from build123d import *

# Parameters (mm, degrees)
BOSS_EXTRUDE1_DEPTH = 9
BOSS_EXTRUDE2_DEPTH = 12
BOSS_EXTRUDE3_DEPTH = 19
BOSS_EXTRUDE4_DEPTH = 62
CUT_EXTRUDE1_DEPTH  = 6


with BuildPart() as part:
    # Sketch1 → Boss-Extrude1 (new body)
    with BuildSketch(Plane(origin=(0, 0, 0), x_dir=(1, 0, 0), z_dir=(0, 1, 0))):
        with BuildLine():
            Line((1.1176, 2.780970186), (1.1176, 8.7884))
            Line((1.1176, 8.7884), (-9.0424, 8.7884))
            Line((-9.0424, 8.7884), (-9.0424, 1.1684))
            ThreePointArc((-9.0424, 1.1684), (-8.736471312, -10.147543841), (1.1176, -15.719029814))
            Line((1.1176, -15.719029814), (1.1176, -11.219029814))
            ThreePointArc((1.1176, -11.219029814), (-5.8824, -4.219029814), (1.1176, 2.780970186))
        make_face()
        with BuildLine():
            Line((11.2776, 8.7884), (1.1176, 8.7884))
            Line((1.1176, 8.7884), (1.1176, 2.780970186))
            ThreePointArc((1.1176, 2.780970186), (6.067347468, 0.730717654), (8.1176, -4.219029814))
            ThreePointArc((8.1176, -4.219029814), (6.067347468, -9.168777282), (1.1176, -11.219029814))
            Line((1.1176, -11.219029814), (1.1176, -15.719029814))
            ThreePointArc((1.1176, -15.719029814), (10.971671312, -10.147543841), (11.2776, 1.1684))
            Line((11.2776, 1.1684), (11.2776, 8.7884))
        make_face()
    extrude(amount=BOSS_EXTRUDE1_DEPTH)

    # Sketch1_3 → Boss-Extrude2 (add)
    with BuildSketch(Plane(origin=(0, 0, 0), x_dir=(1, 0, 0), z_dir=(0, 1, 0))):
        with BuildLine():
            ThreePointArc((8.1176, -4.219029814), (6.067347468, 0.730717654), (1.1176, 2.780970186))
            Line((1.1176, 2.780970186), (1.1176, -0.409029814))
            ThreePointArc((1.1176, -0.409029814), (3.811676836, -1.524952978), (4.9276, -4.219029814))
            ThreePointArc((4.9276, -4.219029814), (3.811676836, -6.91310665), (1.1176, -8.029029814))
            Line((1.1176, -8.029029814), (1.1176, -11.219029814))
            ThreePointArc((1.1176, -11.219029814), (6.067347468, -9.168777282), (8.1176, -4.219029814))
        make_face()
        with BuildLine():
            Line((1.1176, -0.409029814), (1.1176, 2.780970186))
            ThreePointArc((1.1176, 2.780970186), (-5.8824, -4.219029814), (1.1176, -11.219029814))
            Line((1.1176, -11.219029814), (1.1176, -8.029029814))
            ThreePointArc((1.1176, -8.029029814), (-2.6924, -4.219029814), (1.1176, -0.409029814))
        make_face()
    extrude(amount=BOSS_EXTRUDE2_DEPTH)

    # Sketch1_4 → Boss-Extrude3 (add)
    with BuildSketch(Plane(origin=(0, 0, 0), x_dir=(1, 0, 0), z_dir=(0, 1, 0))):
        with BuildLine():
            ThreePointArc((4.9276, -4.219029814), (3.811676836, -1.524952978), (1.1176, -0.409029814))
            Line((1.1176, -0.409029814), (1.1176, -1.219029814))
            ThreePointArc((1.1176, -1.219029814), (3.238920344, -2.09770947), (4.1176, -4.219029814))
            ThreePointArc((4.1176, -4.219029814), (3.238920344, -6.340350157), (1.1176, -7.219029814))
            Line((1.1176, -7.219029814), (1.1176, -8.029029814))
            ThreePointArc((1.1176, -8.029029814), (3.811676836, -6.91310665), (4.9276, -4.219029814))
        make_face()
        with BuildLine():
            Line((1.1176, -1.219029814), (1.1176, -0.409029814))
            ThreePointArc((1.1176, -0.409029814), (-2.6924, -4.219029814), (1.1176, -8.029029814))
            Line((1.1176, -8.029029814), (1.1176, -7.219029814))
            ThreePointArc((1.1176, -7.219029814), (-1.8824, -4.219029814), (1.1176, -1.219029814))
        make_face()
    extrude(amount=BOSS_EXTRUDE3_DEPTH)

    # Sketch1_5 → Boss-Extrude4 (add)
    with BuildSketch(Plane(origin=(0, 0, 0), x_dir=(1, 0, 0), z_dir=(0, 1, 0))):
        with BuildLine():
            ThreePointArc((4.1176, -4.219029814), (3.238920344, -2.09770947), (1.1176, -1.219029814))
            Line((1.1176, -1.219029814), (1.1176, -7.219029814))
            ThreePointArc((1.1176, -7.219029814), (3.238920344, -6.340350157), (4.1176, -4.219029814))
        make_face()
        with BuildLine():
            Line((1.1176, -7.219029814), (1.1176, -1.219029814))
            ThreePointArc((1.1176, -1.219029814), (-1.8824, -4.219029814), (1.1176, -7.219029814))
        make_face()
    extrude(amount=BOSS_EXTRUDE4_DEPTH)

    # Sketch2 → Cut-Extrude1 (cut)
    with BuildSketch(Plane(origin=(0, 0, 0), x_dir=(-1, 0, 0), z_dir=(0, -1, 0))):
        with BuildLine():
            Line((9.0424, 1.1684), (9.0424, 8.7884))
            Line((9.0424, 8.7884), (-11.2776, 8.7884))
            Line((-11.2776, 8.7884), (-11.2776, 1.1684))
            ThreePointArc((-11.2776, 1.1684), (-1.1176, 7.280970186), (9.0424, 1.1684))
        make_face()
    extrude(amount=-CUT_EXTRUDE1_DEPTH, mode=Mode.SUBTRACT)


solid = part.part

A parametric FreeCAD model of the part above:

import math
import FreeCAD as App
import Part
import Sketcher

V = App.Vector
Q = App.Units.Quantity

doc = App.newDocument("Part")
body = doc.addObject("PartDesign::Body", "Body")

sketch1 = doc.addObject("Sketcher::SketchObject", "Sketch")
body.addObject(sketch1)
sketch1.AttachmentSupport = (doc.XZ_Plane, [""])
sketch1.MapMode = "FlatFace"
sketch1.addGeometry([
    Part.LineSegment(V(-9, -9, 0), V(-9, -1, 0)),
    Part.ArcOfCircle(Part.Circle(V(1, 4, 0), V(0, 0, 1), 12), math.radians(90), math.radians(208)),
    Part.ArcOfCircle(Part.Circle(V(1, 4, 0), V(0, 0, 1), 12), math.radians(-28), math.radians(90)),
    Part.LineSegment(V(11, -1, 0), V(11, -9, 0)),
    Part.LineSegment(V(11, -9, 0), V(-9, -9, 0)),
    Part.ArcOfCircle(Part.Circle(V(1, 4, 0), V(0, 0, 1), 7), math.radians(90), math.radians(270)),
    Part.ArcOfCircle(Part.Circle(V(1, 4, 0), V(0, 0, 1), 7), math.radians(-90), math.radians(0)),
    Part.ArcOfCircle(Part.Circle(V(1, 4, 0), V(0, 0, 1), 7), math.radians(0), math.radians(90)),
], False)
sketch1.addConstraint([
    Sketcher.Constraint("Coincident", 0, 2, 1, 2),
    Sketcher.Constraint("Tangent", 1, 1, 2, 2),
    Sketcher.Constraint("Coincident", 2, 1, 3, 1),
    Sketcher.Constraint("Coincident", 3, 2, 4, 1),
    Sketcher.Constraint("Coincident", 4, 2, 0, 1),
    Sketcher.Constraint("Tangent", 5, 2, 6, 1),
    Sketcher.Constraint("Tangent", 6, 2, 7, 1),
    Sketcher.Constraint("Tangent", 7, 2, 5, 1),
    Sketcher.Constraint("Vertical", 0),
    Sketcher.Constraint("Vertical", 3),
    Sketcher.Constraint("Horizontal", 4),
    Sketcher.Constraint("Coincident", 5, 3, 1, 3),
    Sketcher.Constraint("Equal", 1, 2),
    Sketcher.Constraint("Horizontal", 0, 2, 2, 1),
    Sketcher.Constraint("Horizontal", 7, 3, 6, 2),
    Sketcher.Constraint("Vertical", 7, 3, 1, 1),
    Sketcher.Constraint("Vertical", 1, 1, 5, 2),
    Sketcher.Constraint("Vertical", 5, 2, 7, 2),
    Sketcher.Constraint("Radius", 5, Q("7 mm")),
    Sketcher.Constraint("Radius", 1, Q("11.5 mm")),
    Sketcher.Constraint("DistanceX", 4, 2, 4, 1, Q("20.32 mm")),
    Sketcher.Constraint("DistanceY", 0, 1, 0, 2, Q("7.62 mm")),
    Sketcher.Constraint("DistanceX", -1, 1, 1, 3, Q("1.1176 mm")),
    Sketcher.Constraint("DistanceY", 0, 2, -1, 1, Q("1.1684 mm")),
])
pad1 = doc.addObject("PartDesign::Pad", "Pad")
body.addObject(pad1)
pad1.Profile = sketch1
pad1.Length = 9
pad1.Reversed = True

sketch2 = doc.addObject("Sketcher::SketchObject", "Sketch001")
body.addObject(sketch2)
sketch2.AttachmentSupport = (doc.XZ_Plane, [""])
sketch2.MapMode = "FlatFace"
sketch2.addGeometry([
    Part.ArcOfCircle(Part.Circle(V(1.1, 4.2, 0), V(0, 0, 1), 7), math.radians(-90), math.radians(0)),
    Part.ArcOfCircle(Part.Circle(V(1.1, 4.2, 0), V(0, 0, 1), 7), math.radians(90), math.radians(270)),
    Part.ArcOfCircle(Part.Circle(V(1.1, 4.2, 0), V(0, 0, 1), 7), math.radians(0), math.radians(90)),
    Part.ArcOfCircle(Part.Circle(V(1.1, 4.2, 0), V(0, 0, 1), 3.8), math.radians(0), math.radians(90)),
    Part.ArcOfCircle(Part.Circle(V(1.1, 4.2, 0), V(0, 0, 1), 3.8), math.radians(90), math.radians(270)),
    Part.ArcOfCircle(Part.Circle(V(1.1, 4.2, 0), V(0, 0, 1), 3.8), math.radians(-90), math.radians(0)),
], False)
sketch2.addConstraint([
    Sketcher.Constraint("Tangent", 0, 1, 1, 2),
    Sketcher.Constraint("Tangent", 1, 1, 2, 2),
    Sketcher.Constraint("Tangent", 2, 1, 0, 2),
    Sketcher.Constraint("Tangent", 3, 2, 4, 1),
    Sketcher.Constraint("Tangent", 4, 2, 5, 1),
    Sketcher.Constraint("Tangent", 5, 2, 3, 1),
    Sketcher.Constraint("Coincident", 3, 3, 0, 3),
    Sketcher.Constraint("Horizontal", 5, 3, 2, 1),
    Sketcher.Constraint("Horizontal", 2, 1, 5, 2),
    Sketcher.Constraint("Vertical", 5, 3, 0, 1),
    Sketcher.Constraint("Vertical", 0, 1, 1, 1),
    Sketcher.Constraint("Vertical", 1, 1, 3, 2),
    Sketcher.Constraint("Vertical", 3, 2, 4, 2),
    Sketcher.Constraint("Radius", 0, Q("7 mm")),
    Sketcher.Constraint("Radius", 3, Q("3.81 mm")),
    Sketcher.Constraint("DistanceX", -1, 1, 0, 3, Q("1.1176 mm")),
    Sketcher.Constraint("DistanceY", -1, 1, 0, 3, Q("4.21903 mm")),
])
pad2 = doc.addObject("PartDesign::Pad", "Pad001")
body.addObject(pad2)
pad2.Profile = sketch2
pad2.Length = 12
pad2.Reversed = True

sketch3 = doc.addObject("Sketcher::SketchObject", "Sketch002")
body.addObject(sketch3)
sketch3.AttachmentSupport = (doc.XZ_Plane, [""])
sketch3.MapMode = "FlatFace"
sketch3.addGeometry([
    Part.ArcOfCircle(Part.Circle(V(1.1, 4.2, 0), V(0, 0, 1), 3.8), math.radians(-90), math.radians(0)),
    Part.ArcOfCircle(Part.Circle(V(1.1, 4.2, 0), V(0, 0, 1), 3.8), math.radians(90), math.radians(270)),
    Part.ArcOfCircle(Part.Circle(V(1.1, 4.2, 0), V(0, 0, 1), 3.8), math.radians(0), math.radians(90)),
    Part.ArcOfCircle(Part.Circle(V(1.1, 4.2, 0), V(0, 0, 1), 3), math.radians(0), math.radians(90)),
    Part.ArcOfCircle(Part.Circle(V(1.1, 4.2, 0), V(0, 0, 1), 3), math.radians(90), math.radians(270)),
    Part.ArcOfCircle(Part.Circle(V(1.1, 4.2, 0), V(0, 0, 1), 3), math.radians(-90), math.radians(0)),
], False)
sketch3.addConstraint([
    Sketcher.Constraint("Tangent", 0, 1, 1, 2),
    Sketcher.Constraint("Tangent", 1, 1, 2, 2),
    Sketcher.Constraint("Tangent", 2, 1, 0, 2),
    Sketcher.Constraint("Tangent", 3, 2, 4, 1),
    Sketcher.Constraint("Tangent", 4, 2, 5, 1),
    Sketcher.Constraint("Tangent", 5, 2, 3, 1),
    Sketcher.Constraint("Coincident", 3, 3, 0, 3),
    Sketcher.Constraint("Horizontal", 5, 3, 2, 1),
    Sketcher.Constraint("Horizontal", 2, 1, 5, 2),
    Sketcher.Constraint("Vertical", 5, 3, 0, 1),
    Sketcher.Constraint("Vertical", 0, 1, 1, 1),
    Sketcher.Constraint("Vertical", 1, 1, 3, 2),
    Sketcher.Constraint("Vertical", 3, 2, 4, 2),
    Sketcher.Constraint("Radius", 3, Q("3 mm")),
    Sketcher.Constraint("Radius", 0, Q("3.81 mm")),
    Sketcher.Constraint("DistanceX", -1, 1, 0, 3, Q("1.1176 mm")),
    Sketcher.Constraint("DistanceY", -1, 1, 0, 3, Q("4.21903 mm")),
])
pad3 = doc.addObject("PartDesign::Pad", "Pad002")
body.addObject(pad3)
pad3.Profile = sketch3
pad3.Length = 19
pad3.Reversed = True

sketch4 = doc.addObject("Sketcher::SketchObject", "Sketch003")
body.addObject(sketch4)
sketch4.AttachmentSupport = (doc.XZ_Plane, [""])
sketch4.MapMode = "FlatFace"
sketch4.addGeometry([
    Part.ArcOfCircle(Part.Circle(V(1.1, 4.2, 0), V(0, 0, 1), 3), math.radians(-90), math.radians(0)),
    Part.ArcOfCircle(Part.Circle(V(1.1, 4.2, 0), V(0, 0, 1), 3), math.radians(90), math.radians(270)),
    Part.ArcOfCircle(Part.Circle(V(1.1, 4.2, 0), V(0, 0, 1), 3), math.radians(0), math.radians(90)),
], False)
sketch4.addConstraint([
    Sketcher.Constraint("Tangent", 0, 1, 1, 2),
    Sketcher.Constraint("Tangent", 1, 1, 2, 2),
    Sketcher.Constraint("Tangent", 2, 1, 0, 2),
    Sketcher.Constraint("Horizontal", 1, 3, 2, 1),
    Sketcher.Constraint("Vertical", 2, 3, 0, 1),
    Sketcher.Constraint("Vertical", 0, 1, 1, 1),
    Sketcher.Constraint("Radius", 0, Q("3 mm")),
    Sketcher.Constraint("DistanceX", -1, 1, 0, 3, Q("1.1176 mm")),
    Sketcher.Constraint("DistanceY", -1, 1, 0, 3, Q("4.21903 mm")),
])
pad4 = doc.addObject("PartDesign::Pad", "Pad003")
body.addObject(pad4)
pad4.Profile = sketch4
pad4.Length = 62
pad4.Reversed = True

sketch5 = doc.addObject("Sketcher::SketchObject", "Sketch004")
body.addObject(sketch5)
sketch5.AttachmentSupport = (doc.XZ_Plane, [""])
sketch5.MapMode = "FlatFace"
sketch5.addGeometry([
    Part.LineSegment(V(-9, -1, 0), V(-9, -9, 0)),
    Part.LineSegment(V(-9, -9, 0), V(11, -9, 0)),
    Part.LineSegment(V(11, -9, 0), V(11, -1, 0)),
    Part.ArcOfCircle(Part.Circle(V(1, 4, 0), V(0, 0, 1), 12), math.radians(-152), math.radians(-28)),
], False)
sketch5.addConstraint([
    Sketcher.Constraint("Coincident", 0, 2, 1, 1),
    Sketcher.Constraint("Coincident", 1, 2, 2, 1),
    Sketcher.Constraint("Coincident", 2, 2, 3, 2),
    Sketcher.Constraint("Coincident", 3, 1, 0, 1),
    Sketcher.Constraint("Vertical", 0),
    Sketcher.Constraint("Horizontal", 1),
    Sketcher.Constraint("Vertical", 2),
    Sketcher.Constraint("Horizontal", 2, 2, 3, 1),
    Sketcher.Constraint("Radius", 3, Q("11.5 mm")),
    Sketcher.Constraint("DistanceX", 1, 1, 1, 2, Q("20.32 mm")),
    Sketcher.Constraint("DistanceY", 0, 2, 0, 1, Q("7.62 mm")),
    Sketcher.Constraint("DistanceX", -1, 1, 3, 3, Q("1.1176 mm")),
    Sketcher.Constraint("DistanceY", 0, 2, -1, 1, Q("8.7884 mm")),
])
pocket1 = doc.addObject("PartDesign::Pocket", "Pocket")
body.addObject(pocket1)
pocket1.Profile = sketch5
pocket1.Length = 6

doc.recompute()
